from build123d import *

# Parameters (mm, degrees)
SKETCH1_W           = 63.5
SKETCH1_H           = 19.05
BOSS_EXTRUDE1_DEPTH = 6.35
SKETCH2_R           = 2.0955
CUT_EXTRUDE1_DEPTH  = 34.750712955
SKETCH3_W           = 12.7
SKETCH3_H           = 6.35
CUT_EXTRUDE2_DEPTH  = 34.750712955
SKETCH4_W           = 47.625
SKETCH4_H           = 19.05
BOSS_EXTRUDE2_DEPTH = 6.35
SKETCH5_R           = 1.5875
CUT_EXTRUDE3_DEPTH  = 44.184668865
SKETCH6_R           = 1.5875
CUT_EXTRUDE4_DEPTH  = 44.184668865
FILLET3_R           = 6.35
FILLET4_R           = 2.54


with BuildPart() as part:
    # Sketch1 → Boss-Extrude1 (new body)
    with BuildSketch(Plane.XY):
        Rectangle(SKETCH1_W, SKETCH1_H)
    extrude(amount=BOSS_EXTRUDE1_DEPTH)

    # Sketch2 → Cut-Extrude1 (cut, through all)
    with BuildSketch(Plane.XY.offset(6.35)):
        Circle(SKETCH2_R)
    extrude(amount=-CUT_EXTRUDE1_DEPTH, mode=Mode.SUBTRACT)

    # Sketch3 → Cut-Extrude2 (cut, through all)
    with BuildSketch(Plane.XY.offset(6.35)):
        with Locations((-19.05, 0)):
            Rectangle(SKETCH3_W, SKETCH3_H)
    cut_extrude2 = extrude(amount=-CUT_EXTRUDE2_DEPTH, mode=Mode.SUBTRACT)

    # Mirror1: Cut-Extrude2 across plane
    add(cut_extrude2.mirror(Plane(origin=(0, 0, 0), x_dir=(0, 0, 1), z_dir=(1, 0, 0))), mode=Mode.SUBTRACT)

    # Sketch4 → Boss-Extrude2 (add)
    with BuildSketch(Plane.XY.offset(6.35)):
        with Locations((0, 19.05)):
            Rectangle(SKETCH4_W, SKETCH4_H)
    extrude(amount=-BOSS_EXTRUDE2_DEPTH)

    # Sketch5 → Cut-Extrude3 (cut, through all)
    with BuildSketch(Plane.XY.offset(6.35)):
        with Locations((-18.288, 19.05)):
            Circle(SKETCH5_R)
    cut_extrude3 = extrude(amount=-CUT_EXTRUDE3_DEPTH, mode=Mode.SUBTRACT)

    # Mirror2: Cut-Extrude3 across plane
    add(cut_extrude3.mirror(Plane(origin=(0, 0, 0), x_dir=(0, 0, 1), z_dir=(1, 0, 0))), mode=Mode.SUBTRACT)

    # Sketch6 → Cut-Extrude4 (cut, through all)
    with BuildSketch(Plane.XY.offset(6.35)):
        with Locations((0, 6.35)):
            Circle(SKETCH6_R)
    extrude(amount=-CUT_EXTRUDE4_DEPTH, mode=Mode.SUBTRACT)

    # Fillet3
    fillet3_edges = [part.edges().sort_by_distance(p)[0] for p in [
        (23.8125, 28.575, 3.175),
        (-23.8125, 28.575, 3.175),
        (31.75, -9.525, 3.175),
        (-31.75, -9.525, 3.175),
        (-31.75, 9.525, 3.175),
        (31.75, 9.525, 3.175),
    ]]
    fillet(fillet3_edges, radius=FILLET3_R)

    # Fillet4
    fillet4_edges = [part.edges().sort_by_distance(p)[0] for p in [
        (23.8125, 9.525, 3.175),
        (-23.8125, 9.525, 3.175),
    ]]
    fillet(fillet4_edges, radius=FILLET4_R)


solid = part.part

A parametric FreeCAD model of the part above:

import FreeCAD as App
import Part
import Sketcher
from FreeCAD import Vector
Q = App.Units.Quantity


def edges_at(feature, points):
    """Names of the edges that pass closest to the given points."""
    edges = feature.Shape.Edges
    near = lambda p: min(range(len(edges)), key=lambda i: edges[i].distToShape(Part.Vertex(*p))[0])
    return sorted({f"Edge{near(p) + 1}" for p in points})

doc = App.newDocument("Part")
body = doc.addObject("PartDesign::Body", "Body")

sketch1 = doc.addObject("Sketcher::SketchObject", "Sketch")
body.addObject(sketch1)
sketch1.AttachmentSupport = (doc.XY_Plane, [""])
sketch1.MapMode = "FlatFace"
sketch1.addGeometry(Part.LineSegment(Vector(-32, 10, 0), Vector(-32, -10, 0)), False)
sketch1.addGeometry(Part.LineSegment(Vector(-32, -10, 0), Vector(32, -10, 0)), False)
sketch1.addGeometry(Part.LineSegment(Vector(32, -10, 0), Vector(32, 10, 0)), False)
sketch1.addGeometry(Part.LineSegment(Vector(32, 10, 0), Vector(-32, 10, 0)), False)
sketch1.addConstraint(Sketcher.Constraint("Coincident", 0, 2, 1, 1))
sketch1.addConstraint(Sketcher.Constraint("Coincident", 1, 2, 2, 1))
sketch1.addConstraint(Sketcher.Constraint("Coincident", 2, 2, 3, 1))
sketch1.addConstraint(Sketcher.Constraint("Coincident", 3, 2, 0, 1))
sketch1.addConstraint(Sketcher.Constraint("Vertical", 0))
sketch1.addConstraint(Sketcher.Constraint("Horizontal", 1))
sketch1.addConstraint(Sketcher.Constraint("Vertical", 2))
sketch1.addConstraint(Sketcher.Constraint("Horizontal", 3))
sketch1.addConstraint(Sketcher.Constraint("Symmetric", 0, 2, 2, 2, -1, 1))
sketch1.addConstraint(Sketcher.Constraint("DistanceX", 1, 1, 1, 2, Q("2.5 in")))
sketch1.addConstraint(Sketcher.Constraint("DistanceY", 0, 2, 0, 1, Q("0.75 in")))
pad1 = doc.addObject("PartDesign::Pad", "Pad")
body.addObject(pad1)
pad1.Profile = sketch1
pad1.Length = Q("0.25 in")

sketch2 = doc.addObject("Sketcher::SketchObject", "Sketch001")
body.addObject(sketch2)
sketch2.AttachmentSupport = (doc.XY_Plane, [""])
sketch2.MapMode = "FlatFace"
sketch2.AttachmentOffset = App.Placement(Vector(0, 0, 0.25 * 25.4), App.Rotation())
sketch2.addGeometry(Part.Circle(Vector(0, 0, 0), Vector(0, 0, 1), 2.1), False)
sketch2.addConstraint(Sketcher.Constraint("Coincident", 0, 3, -1, 1))
sketch2.addConstraint(Sketcher.Constraint("Diameter", 0, Q("0.165 in")))
pocket1 = doc.addObject("PartDesign::Pocket", "Pocket")
body.addObject(pocket1)
pocket1.Profile = sketch2
pocket1.Type = "ThroughAll"

sketch3 = doc.addObject("Sketcher::SketchObject", "Sketch002")
body.addObject(sketch3)
sketch3.AttachmentSupport = (doc.XY_Plane, [""])
sketch3.MapMode = "FlatFace"
sketch3.AttachmentOffset = App.Placement(Vector(0, 0, 0.25 * 25.4), App.Rotation())
sketch3.addGeometry(Part.LineSegment(Vector(-25, 3, 0), Vector(-25, -3, 0)), False)
sketch3.addGeometry(Part.LineSegment(Vector(-25, -3, 0), Vector(-13, -3, 0)), False)
sketch3.addGeometry(Part.LineSegment(Vector(-13, -3, 0), Vector(-13, 3, 0)), False)
sketch3.addGeometry(Part.LineSegment(Vector(-13, 3, 0), Vector(-25, 3, 0)), False)
sketch3.addConstraint(Sketcher.Constraint("Coincident", 0, 2, 1, 1))
sketch3.addConstraint(Sketcher.Constraint("Coincident", 1, 2, 2, 1))
sketch3.addConstraint(Sketcher.Constraint("Coincident", 2, 2, 3, 1))
sketch3.addConstraint(Sketcher.Constraint("Coincident", 3, 2, 0, 1))
sketch3.addConstraint(Sketcher.Constraint("Vertical", 0))
sketch3.addConstraint(Sketcher.Constraint("Horizontal", 1))
sketch3.addConstraint(Sketcher.Constraint("Vertical", 2))
sketch3.addConstraint(Sketcher.Constraint("Horizontal", 3))
sketch3.addConstraint(Sketcher.Constraint("DistanceX", 1, 1, 1, 2, Q("0.5 in")))
sketch3.addConstraint(Sketcher.Constraint("DistanceX", 0, 2, -1, 1, Q("1 in")))
sketch3.addConstraint(Sketcher.Constraint("DistanceY", 0, 2, 0, 1, Q("0.25 in")))
sketch3.addConstraint(Sketcher.Constraint("DistanceY", 0, 2, -1, 1, Q("0.125 in")))
pocket2 = doc.addObject("PartDesign::Pocket", "Pocket001")
body.addObject(pocket2)
pocket2.Profile = sketch3
pocket2.Type = "ThroughAll"
doc.recompute()

mirrored = doc.addObject("PartDesign::Mirrored", "Mirrored")
body.addObject(mirrored)
mirrored.Originals = [pocket2]
mirrored.MirrorPlane = (doc.YZ_Plane, [""])
body.Tip = mirrored

sketch4 = doc.addObject("Sketcher::SketchObject", "Sketch003")
body.addObject(sketch4)
sketch4.AttachmentSupport = (doc.XY_Plane, [""])
sketch4.MapMode = "FlatFace"
sketch4.AttachmentOffset = App.Placement(Vector(0, 0, 0.25 * 25.4), App.Rotation())
sketch4.addGeometry(Part.LineSegment(Vector(-24, 29, 0), Vector(-24, 10, 0)), False)
sketch4.addGeometry(Part.LineSegment(Vector(-24, 10, 0), Vector(24, 10, 0)), False)
sketch4.addGeometry(Part.LineSegment(Vector(24, 10, 0), Vector(24, 29, 0)), False)
sketch4.addGeometry(Part.LineSegment(Vector(24, 29, 0), Vector(-24, 29, 0)), False)
sketch4.addConstraint(Sketcher.Constraint("Coincident", 0, 2, 1, 1))
sketch4.addConstraint(Sketcher.Constraint("Coincident", 1, 2, 2, 1))
sketch4.addConstraint(Sketcher.Constraint("Coincident", 2, 2, 3, 1))
sketch4.addConstraint(Sketcher.Constraint("Coincident", 3, 2, 0, 1))
sketch4.addConstraint(Sketcher.Constraint("Vertical", 0))
sketch4.addConstraint(Sketcher.Constraint("Horizontal", 1))
sketch4.addConstraint(Sketcher.Constraint("Vertical", 2))
sketch4.addConstraint(Sketcher.Constraint("Horizontal", 3))
sketch4.addConstraint(Sketcher.Constraint("DistanceY", 0, 2, 0, 1, Q("0.75 in")))
sketch4.addConstraint(Sketcher.Constraint("DistanceX", 1, 1, 1, 2, Q("1.875 in")))
sketch4.addConstraint(Sketcher.Constraint("DistanceX", 0, 2, -1, 1, Q("0.9375 in")))
sketch4.addConstraint(Sketcher.Constraint("DistanceY", -1, 1, 0, 2, Q("0.375 in")))
pad2 = doc.addObject("PartDesign::Pad", "Pad001")
body.addObject(pad2)
pad2.Profile = sketch4
pad2.Length = Q("0.25 in")
pad2.Reversed = True

sketch5 = doc.addObject("Sketcher::SketchObject", "Sketch004")
body.addObject(sketch5)
sketch5.AttachmentSupport = (doc.XY_Plane, [""])
sketch5.MapMode = "FlatFace"
sketch5.AttachmentOffset = App.Placement(Vector(0, 0, 0.25 * 25.4), App.Rotation())
sketch5.addGeometry(Part.Circle(Vector(-18.3, 19.1, 0), Vector(0, 0, 1), 1.6), False)
sketch5.addConstraint(Sketcher.Constraint("Diameter", 0, Q("0.125 in")))
sketch5.addConstraint(Sketcher.Constraint("DistanceX", 0, 3, -1, 1, Q("0.72 in")))
sketch5.addConstraint(Sketcher.Constraint("DistanceY", -1, 1, 0, 3, Q("0.75 in")))
pocket3 = doc.addObject("PartDesign::Pocket", "Pocket002")
body.addObject(pocket3)
pocket3.Profile = sketch5
pocket3.Type = "ThroughAll"
doc.recompute()

mirrored2 = doc.addObject("PartDesign::Mirrored", "Mirrored001")
body.addObject(mirrored2)
mirrored2.Originals = [pocket3]
mirrored2.MirrorPlane = (doc.YZ_Plane, [""])
body.Tip = mirrored2

sketch6 = doc.addObject("Sketcher::SketchObject", "Sketch005")
body.addObject(sketch6)
sketch6.AttachmentSupport = (doc.XY_Plane, [""])
sketch6.MapMode = "FlatFace"
sketch6.AttachmentOffset = App.Placement(Vector(0, 0, 0.25 * 25.4), App.Rotation())
sketch6.addGeometry(Part.Circle(Vector(0, 6.3, 0), Vector(0, 0, 1), 1.6), False)
sketch6.addConstraint(Sketcher.Constraint("PointOnObject", 0, 3, -2))
sketch6.addConstraint(Sketcher.Constraint("Diameter", 0, Q("0.125 in")))
sketch6.addConstraint(Sketcher.Constraint("DistanceY", -1, 1, 0, 3, Q("0.25 in")))
pocket4 = doc.addObject("PartDesign::Pocket", "Pocket003")
body.addObject(pocket4)
pocket4.Profile = sketch6
pocket4.Type = "ThroughAll"
doc.recompute()

fillet = doc.addObject("PartDesign::Fillet", "Fillet")
body.addObject(fillet)
fillet.Base = (pocket4, edges_at(pocket4, [
    (23.812, 28.575, 3.175),
    (-23.812, 28.575, 3.175),
    (31.75, -9.525, 3.175),
    (-31.75, -9.525, 3.175),
    (-31.75, 9.525, 3.175),
    (31.75, 9.525, 3.175),
]))
fillet.Radius = Q("0.25 in")
doc.recompute()

fillet2 = doc.addObject("PartDesign::Fillet", "Fillet001")
body.addObject(fillet2)
fillet2.Base = (fillet, edges_at(fillet, [(23.812, 9.525, 3.175), (-23.812, 9.525, 3.175)]))
fillet2.Radius = Q("0.1 in")

doc.recompute()
